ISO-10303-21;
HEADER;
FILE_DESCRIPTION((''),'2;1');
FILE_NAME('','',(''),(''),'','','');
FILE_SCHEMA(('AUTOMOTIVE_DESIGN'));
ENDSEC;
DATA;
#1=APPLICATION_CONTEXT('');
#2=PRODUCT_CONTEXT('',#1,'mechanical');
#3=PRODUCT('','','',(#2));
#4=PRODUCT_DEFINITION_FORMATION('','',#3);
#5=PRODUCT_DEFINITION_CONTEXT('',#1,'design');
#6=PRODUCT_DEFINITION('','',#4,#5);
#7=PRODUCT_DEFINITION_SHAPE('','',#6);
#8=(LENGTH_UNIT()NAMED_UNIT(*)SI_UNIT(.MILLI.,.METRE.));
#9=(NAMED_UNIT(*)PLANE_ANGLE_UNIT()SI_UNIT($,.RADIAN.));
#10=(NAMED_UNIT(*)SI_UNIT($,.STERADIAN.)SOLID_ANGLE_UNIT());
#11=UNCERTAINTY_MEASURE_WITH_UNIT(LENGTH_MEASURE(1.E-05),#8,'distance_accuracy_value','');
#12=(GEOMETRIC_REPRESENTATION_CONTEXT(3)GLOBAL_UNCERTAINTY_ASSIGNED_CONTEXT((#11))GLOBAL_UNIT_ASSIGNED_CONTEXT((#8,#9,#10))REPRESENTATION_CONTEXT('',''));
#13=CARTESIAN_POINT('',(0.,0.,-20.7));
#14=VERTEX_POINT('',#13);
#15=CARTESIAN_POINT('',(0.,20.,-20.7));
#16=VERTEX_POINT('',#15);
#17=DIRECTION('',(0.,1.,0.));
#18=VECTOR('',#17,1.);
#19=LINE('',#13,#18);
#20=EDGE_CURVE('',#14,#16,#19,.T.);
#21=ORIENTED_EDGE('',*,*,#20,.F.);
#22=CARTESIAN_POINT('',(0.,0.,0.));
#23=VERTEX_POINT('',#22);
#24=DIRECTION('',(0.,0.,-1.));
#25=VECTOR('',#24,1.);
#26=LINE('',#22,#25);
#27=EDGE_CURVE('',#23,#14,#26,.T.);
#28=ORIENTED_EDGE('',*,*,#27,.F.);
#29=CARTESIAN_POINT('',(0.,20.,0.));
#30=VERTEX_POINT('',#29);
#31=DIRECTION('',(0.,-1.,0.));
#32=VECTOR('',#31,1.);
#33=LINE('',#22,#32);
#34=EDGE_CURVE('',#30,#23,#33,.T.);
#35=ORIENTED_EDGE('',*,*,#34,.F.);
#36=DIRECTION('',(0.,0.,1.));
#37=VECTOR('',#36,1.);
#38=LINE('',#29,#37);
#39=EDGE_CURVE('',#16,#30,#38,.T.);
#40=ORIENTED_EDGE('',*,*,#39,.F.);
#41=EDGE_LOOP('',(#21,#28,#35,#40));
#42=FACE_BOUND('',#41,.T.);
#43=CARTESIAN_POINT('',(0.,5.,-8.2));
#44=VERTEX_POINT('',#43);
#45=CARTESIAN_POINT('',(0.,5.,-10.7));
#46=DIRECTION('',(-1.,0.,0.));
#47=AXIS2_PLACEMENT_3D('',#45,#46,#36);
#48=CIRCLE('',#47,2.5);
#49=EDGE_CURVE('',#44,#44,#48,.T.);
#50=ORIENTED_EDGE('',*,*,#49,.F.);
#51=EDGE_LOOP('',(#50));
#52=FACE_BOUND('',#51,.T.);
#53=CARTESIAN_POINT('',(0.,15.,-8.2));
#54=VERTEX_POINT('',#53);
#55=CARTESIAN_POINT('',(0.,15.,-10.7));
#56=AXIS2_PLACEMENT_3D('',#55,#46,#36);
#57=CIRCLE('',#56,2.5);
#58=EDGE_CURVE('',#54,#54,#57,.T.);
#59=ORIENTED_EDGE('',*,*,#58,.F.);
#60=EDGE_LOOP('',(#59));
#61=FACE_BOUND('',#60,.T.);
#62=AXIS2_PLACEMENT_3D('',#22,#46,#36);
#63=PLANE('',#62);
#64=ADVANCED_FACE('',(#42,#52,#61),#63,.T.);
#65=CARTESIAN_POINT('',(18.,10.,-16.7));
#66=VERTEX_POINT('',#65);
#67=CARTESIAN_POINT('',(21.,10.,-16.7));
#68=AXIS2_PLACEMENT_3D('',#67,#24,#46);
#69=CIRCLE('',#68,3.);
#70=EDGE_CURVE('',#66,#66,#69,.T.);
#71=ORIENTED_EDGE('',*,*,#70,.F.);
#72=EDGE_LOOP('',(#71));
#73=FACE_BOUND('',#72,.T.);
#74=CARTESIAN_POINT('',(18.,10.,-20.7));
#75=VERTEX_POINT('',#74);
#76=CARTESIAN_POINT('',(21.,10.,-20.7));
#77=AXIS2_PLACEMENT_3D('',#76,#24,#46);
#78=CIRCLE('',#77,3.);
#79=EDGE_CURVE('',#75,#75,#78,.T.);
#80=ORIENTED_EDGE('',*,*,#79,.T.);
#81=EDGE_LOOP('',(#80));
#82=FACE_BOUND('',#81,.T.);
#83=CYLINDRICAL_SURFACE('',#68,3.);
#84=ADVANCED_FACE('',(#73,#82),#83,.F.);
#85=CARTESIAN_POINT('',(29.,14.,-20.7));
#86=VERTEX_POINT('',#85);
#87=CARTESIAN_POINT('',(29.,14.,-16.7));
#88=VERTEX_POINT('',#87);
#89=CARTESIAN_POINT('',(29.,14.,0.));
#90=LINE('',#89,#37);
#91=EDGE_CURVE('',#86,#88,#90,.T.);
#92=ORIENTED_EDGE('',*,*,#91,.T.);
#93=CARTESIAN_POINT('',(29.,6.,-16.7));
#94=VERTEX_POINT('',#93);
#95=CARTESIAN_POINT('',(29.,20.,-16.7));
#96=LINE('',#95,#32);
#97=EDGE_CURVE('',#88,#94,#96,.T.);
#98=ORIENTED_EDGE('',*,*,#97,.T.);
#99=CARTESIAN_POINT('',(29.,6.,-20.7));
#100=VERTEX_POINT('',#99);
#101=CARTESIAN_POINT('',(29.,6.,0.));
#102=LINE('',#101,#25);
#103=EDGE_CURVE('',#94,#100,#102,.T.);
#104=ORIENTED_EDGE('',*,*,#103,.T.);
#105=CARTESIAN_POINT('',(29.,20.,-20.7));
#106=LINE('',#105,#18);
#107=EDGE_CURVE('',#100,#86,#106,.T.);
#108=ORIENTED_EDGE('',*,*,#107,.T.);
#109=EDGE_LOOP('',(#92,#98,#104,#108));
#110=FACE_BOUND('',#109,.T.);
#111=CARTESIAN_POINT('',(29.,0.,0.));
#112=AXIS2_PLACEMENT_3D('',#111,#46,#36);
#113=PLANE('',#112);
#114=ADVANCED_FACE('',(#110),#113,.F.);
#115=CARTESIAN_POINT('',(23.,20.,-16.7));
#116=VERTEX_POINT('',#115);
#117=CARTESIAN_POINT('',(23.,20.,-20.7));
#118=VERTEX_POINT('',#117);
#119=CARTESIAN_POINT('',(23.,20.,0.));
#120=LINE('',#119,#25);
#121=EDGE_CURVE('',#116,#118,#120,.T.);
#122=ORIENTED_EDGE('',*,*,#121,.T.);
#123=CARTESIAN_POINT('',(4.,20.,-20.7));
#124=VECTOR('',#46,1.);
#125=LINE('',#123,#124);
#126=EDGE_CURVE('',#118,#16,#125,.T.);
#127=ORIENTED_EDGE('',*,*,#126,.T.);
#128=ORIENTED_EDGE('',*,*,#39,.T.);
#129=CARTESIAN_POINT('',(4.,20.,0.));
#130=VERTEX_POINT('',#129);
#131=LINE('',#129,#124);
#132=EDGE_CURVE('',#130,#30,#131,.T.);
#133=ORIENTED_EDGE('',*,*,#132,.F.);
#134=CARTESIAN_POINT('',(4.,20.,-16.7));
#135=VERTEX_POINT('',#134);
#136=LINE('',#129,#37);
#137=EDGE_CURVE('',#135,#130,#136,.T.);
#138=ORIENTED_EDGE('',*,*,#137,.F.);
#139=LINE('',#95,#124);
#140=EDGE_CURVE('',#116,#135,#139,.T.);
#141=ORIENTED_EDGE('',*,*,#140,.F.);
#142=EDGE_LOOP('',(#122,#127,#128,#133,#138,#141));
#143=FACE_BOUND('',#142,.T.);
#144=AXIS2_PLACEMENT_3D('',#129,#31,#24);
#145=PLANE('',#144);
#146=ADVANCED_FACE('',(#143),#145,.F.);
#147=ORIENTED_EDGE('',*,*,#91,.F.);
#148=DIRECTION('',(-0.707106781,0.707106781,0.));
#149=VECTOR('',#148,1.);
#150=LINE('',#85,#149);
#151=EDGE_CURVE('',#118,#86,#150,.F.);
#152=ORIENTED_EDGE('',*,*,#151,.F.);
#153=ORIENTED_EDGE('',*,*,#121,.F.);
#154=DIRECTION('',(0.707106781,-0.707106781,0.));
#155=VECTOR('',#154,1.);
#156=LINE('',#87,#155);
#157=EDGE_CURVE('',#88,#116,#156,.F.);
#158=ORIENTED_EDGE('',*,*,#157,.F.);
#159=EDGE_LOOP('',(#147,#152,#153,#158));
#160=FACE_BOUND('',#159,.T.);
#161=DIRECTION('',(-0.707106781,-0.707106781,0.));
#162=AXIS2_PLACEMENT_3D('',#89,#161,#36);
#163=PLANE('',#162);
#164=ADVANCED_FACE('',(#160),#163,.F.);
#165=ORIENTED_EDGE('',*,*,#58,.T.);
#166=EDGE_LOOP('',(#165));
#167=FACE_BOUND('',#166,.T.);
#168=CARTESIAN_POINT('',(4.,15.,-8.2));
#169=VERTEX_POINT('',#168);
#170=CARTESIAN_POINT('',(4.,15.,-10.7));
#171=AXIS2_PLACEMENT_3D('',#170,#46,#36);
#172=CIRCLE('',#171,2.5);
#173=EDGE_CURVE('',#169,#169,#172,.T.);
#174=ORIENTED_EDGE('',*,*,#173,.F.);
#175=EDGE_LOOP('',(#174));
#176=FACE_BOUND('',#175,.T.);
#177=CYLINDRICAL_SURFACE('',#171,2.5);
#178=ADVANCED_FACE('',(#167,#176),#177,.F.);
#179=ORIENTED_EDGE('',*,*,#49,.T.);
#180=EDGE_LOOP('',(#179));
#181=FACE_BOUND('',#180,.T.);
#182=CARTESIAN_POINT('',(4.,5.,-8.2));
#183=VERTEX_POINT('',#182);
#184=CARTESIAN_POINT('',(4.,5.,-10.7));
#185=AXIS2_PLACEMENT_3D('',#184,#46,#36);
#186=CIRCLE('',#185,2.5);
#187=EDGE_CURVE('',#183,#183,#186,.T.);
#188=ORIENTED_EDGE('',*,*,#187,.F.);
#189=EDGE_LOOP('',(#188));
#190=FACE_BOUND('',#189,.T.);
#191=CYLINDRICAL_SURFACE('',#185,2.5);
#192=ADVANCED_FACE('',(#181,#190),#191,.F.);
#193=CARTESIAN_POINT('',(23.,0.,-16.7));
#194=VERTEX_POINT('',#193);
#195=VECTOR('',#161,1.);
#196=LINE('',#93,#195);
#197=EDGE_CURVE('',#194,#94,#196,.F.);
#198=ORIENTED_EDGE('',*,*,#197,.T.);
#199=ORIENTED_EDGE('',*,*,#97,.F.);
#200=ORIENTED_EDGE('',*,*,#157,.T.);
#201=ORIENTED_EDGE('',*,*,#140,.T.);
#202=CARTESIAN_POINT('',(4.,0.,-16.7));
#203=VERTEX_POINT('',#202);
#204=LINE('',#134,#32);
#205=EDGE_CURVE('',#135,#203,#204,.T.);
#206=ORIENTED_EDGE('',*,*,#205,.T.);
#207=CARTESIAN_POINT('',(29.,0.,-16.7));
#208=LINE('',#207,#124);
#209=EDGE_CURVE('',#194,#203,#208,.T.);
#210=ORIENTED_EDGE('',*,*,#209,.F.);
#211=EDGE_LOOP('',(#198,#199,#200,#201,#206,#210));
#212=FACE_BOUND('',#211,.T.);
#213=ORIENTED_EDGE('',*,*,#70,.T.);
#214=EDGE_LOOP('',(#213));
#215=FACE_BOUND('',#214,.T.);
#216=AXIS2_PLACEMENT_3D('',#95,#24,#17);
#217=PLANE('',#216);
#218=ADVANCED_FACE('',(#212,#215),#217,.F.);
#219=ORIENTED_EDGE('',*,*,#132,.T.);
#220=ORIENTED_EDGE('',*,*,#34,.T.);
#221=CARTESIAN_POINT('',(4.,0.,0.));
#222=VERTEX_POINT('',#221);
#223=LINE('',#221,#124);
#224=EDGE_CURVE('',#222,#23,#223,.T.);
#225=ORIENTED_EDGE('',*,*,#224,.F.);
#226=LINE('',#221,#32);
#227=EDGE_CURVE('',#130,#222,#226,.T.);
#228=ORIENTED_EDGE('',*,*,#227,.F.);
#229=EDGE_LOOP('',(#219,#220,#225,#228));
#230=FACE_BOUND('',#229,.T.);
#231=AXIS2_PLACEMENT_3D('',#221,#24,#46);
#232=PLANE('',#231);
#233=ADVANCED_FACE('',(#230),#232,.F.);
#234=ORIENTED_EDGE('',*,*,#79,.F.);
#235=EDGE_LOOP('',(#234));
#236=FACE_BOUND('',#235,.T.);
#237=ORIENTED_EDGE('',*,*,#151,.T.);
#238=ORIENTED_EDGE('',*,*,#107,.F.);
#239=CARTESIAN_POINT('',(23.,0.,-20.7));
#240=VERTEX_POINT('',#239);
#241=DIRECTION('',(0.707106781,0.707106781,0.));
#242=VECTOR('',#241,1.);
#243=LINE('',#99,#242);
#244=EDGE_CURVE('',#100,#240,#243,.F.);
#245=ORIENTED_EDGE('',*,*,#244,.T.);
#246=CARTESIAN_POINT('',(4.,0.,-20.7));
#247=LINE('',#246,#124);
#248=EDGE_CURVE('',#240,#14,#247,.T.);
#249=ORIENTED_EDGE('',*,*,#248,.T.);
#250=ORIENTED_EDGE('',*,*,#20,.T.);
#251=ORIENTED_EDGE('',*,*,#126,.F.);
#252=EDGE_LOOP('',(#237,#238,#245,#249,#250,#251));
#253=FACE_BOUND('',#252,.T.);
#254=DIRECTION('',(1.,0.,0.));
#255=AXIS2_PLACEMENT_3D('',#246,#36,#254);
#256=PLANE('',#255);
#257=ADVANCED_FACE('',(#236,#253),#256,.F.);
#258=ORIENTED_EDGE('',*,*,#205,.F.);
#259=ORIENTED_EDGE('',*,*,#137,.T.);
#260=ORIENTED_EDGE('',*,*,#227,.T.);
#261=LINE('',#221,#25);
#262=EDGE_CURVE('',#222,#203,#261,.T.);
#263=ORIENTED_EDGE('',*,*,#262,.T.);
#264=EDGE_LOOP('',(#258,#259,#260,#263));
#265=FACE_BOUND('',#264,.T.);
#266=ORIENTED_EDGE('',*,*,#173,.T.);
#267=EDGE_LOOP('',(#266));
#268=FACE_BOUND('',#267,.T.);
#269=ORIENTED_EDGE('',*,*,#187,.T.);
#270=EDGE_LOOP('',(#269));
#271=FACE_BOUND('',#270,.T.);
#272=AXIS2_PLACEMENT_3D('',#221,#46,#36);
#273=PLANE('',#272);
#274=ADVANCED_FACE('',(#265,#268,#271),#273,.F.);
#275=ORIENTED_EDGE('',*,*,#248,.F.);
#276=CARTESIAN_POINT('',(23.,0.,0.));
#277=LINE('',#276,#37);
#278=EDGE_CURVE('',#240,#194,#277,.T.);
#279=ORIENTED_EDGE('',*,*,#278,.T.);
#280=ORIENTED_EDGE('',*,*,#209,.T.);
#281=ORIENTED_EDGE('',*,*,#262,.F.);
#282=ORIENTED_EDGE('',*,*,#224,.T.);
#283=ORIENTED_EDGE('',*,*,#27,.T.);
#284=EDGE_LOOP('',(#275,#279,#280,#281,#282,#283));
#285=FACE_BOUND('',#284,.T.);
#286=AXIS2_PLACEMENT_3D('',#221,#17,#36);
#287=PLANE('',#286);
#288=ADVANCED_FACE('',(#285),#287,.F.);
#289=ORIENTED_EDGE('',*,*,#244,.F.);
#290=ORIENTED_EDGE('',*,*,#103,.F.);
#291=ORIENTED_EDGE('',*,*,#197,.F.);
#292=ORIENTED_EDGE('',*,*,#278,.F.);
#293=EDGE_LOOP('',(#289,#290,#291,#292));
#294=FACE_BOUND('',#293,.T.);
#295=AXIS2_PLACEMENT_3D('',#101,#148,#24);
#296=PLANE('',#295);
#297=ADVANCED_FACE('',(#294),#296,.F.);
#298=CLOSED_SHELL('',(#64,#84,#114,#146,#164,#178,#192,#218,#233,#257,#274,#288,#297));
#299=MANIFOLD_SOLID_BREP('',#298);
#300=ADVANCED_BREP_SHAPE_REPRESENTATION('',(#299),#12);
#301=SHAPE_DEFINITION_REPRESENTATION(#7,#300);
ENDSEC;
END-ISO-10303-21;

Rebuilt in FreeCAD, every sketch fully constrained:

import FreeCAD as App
import Part
import Sketcher
from FreeCAD import Vector


def edges_at(feature, points):
    """Names of the edges that pass closest to the given points."""
    edges = feature.Shape.Edges
    near = lambda p: min(range(len(edges)), key=lambda i: edges[i].distToShape(Part.Vertex(*p))[0])
    return sorted({f"Edge{near(p) + 1}" for p in points})


def add_polygon(sketch, points):
    """Adds a closed chain of lines whose ends are joined by coincident constraints."""
    first, n = sketch.GeometryCount, len(points)
    for a, b in zip(points, points[1:] + points[:1]):
        sketch.addGeometry(Part.LineSegment(App.Vector(*a, 0), App.Vector(*b, 0)), False)
    for i in range(n):
        sketch.addConstraint(Sketcher.Constraint("Coincident", first + i, 2, first + (i + 1) % n, 1))

doc = App.newDocument("Part")
params = doc.addObject("Spreadsheet::Sheet", "Params")
for row, (alias, value) in enumerate([
    ("sketch1_width", "20 mm"),
    ("sketch1_height", "20.7 mm"),
    ("pad1_length", "4 mm"),
    ("sketch2_width", "20 mm"),
    ("sketch2_height", "4 mm"),
    ("pad2_length", "25 mm"),
    ("sketch3_diameter", "5 mm"),
    ("pocket1_length", "4 mm"),
    ("sketch4_diameter", "6 mm"),
    ("pocket2_length", "4 mm"),
    ("chamfer_size", "6 mm"),
], start=1):
    params.set(f"A{row}", alias)
    params.set(f"B{row}", "=" + value)
    params.setAlias(f"B{row}", alias)

body = doc.addObject("PartDesign::Body", "Body")

# Sketch on YZ plane
sketch1 = body.newObject("Sketcher::SketchObject", "Sketch")
sketch1.AttachmentSupport = (doc.getObject("YZ_Plane"), [""])
sketch1.MapMode = "FlatFace"
add_polygon(sketch1, [(20, 0), (0, 0), (0, -21), (20, -21)])  # lines 0-3
sketch1.addConstraint([
    Sketcher.Constraint("Horizontal", 0),
    Sketcher.Constraint("Vertical", 1),
    Sketcher.Constraint("Horizontal", 2),
    Sketcher.Constraint("Vertical", 3),
    Sketcher.Constraint("Coincident", 0, 2, -1, 1),
    Sketcher.Constraint("DistanceX", 0, 2, 0, 1, 20.0),
    Sketcher.Constraint("DistanceY", 1, 2, 1, 1, 20.7),
])
sketch1.setExpression("Constraints[9]", "Params.sketch1_width")
sketch1.setExpression("Constraints[10]", "Params.sketch1_height")
pad1 = body.newObject("PartDesign::Pad", "Pad")
pad1.Profile = sketch1
pad1.setExpression("Length", "Params.pad1_length")

# Sketch on YZ plane
sketch2 = body.newObject("Sketcher::SketchObject", "Sketch001")
sketch2.AttachmentSupport = (doc.getObject("YZ_Plane"), [""])
sketch2.MapMode = "FlatFace"
sketch2.AttachmentOffset = App.Placement(Vector(0, 0, 4), App.Rotation())
add_polygon(sketch2, [(20, -16.7), (0, -16.7), (0, -20.7), (20, -20.7)])  # lines 0-3
sketch2.addConstraint([
    Sketcher.Constraint("Horizontal", 0),
    Sketcher.Constraint("Vertical", 1),
    Sketcher.Constraint("Horizontal", 2),
    Sketcher.Constraint("Vertical", 3),
    Sketcher.Constraint("PointOnObject", 0, 2, -2),
    Sketcher.Constraint("DistanceX", 0, 2, 0, 1, 20.0),
    Sketcher.Constraint("DistanceY", 1, 2, 1, 1, 4.0),
    Sketcher.Constraint("DistanceY", 0, 2, -1, 1, 16.7),
])
sketch2.setExpression("Constraints[9]", "Params.sketch2_width")
sketch2.setExpression("Constraints[10]", "Params.sketch2_height")
pad2 = body.newObject("PartDesign::Pad", "Pad001")
pad2.Profile = sketch2
pad2.setExpression("Length", "Params.pad2_length")

# Sketch on YZ plane
sketch3 = body.newObject("Sketcher::SketchObject", "Sketch002")
sketch3.AttachmentSupport = (doc.getObject("YZ_Plane"), [""])
sketch3.MapMode = "FlatFace"
sketch3.addGeometry([
    Part.Circle(Vector(15, -10.7, 0), Vector(0, 0, 1), 2.5),
    Part.Circle(Vector(5, -10.7, 0), Vector(0, 0, 1), 2.5),
], False)
sketch3.addConstraint([
    Sketcher.Constraint("Equal", 0, 1),
    Sketcher.Constraint("Horizontal", 0, 3, 1, 3),
    Sketcher.Constraint("Diameter", 0, 5.0),
    Sketcher.Constraint("DistanceX", -1, 1, 0, 3, 15.0),
    Sketcher.Constraint("DistanceX", -1, 1, 1, 3, 5.0),
    Sketcher.Constraint("DistanceY", 0, 3, -1, 1, 10.7),
])
sketch3.setExpression("Constraints[2]", "Params.sketch3_diameter")
pocket1 = body.newObject("PartDesign::Pocket", "Pocket")
pocket1.Profile = sketch3
pocket1.setExpression("Length", "Params.pocket1_length")
pocket1.Reversed = True

# Sketch on XY plane
sketch4 = body.newObject("Sketcher::SketchObject", "Sketch003")
sketch4.AttachmentSupport = (doc.getObject("XY_Plane"), [""])
sketch4.MapMode = "FlatFace"
sketch4.AttachmentOffset = App.Placement(Vector(0, 0, -20.7), App.Rotation())
sketch4.addGeometry(Part.Circle(Vector(21, 10, 0), Vector(0, 0, 1), 3), False)
sketch4.addConstraint([
    Sketcher.Constraint("Diameter", 0, 6.0),
    Sketcher.Constraint("DistanceX", -1, 1, 0, 3, 21.0),
    Sketcher.Constraint("DistanceY", -1, 1, 0, 3, 10.0),
])
sketch4.setExpression("Constraints[0]", "Params.sketch4_diameter")
pocket2 = body.newObject("PartDesign::Pocket", "Pocket001")
pocket2.Profile = sketch4
pocket2.setExpression("Length", "Params.pocket2_length")
pocket2.Reversed = True
doc.recompute()

chamfer = body.newObject("PartDesign::Chamfer", "Chamfer")
chamfer.Base = (pocket2, edges_at(pocket2, [(29, 0, -18.7), (29, 20, -18.7)]))
chamfer.setExpression("Size", "Params.chamfer_size")

doc.recompute()
